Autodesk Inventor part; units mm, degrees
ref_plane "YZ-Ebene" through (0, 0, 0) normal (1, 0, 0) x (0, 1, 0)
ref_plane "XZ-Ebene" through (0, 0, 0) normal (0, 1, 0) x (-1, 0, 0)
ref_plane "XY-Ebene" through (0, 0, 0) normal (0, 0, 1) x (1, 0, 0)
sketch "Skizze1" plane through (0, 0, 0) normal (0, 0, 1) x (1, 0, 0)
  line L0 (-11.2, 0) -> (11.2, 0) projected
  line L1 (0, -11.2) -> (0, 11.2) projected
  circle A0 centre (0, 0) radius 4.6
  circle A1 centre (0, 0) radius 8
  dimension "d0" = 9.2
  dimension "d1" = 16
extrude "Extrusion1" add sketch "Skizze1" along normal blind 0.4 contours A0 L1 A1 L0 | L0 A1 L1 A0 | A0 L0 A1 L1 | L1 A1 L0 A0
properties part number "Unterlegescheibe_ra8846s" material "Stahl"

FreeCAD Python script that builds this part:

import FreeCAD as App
import Part
import Sketcher
Q = App.Units.Quantity

doc = App.newDocument("Part")
body = doc.addObject("PartDesign::Body", "Body")

# Sketch on XY plane
sketch1 = body.newObject("Sketcher::SketchObject", "Sketch")
sketch1.AttachmentSupport = (doc.getObject("XY_Plane"), [""])
sketch1.MapMode = "FlatFace"
sketch1.addGeometry([
    Part.Circle(App.Vector(0, 0, 0), App.Vector(0, 0, 1), 8),
    Part.Circle(App.Vector(0, 0, 0), App.Vector(0, 0, 1), 4.6),
], False)
sketch1.addConstraint([
    Sketcher.Constraint("Coincident", 0, 3, -1, 1),
    Sketcher.Constraint("Coincident", 1, 3, -1, 1),
    Sketcher.Constraint("Diameter", 0, Q("16 mm")),
    Sketcher.Constraint("Diameter", 1, Q("9.2 mm")),
])
pad1 = body.newObject("PartDesign::Pad", "Pad")
pad1.Profile = sketch1
pad1.Length = 0.4

doc.recompute()
